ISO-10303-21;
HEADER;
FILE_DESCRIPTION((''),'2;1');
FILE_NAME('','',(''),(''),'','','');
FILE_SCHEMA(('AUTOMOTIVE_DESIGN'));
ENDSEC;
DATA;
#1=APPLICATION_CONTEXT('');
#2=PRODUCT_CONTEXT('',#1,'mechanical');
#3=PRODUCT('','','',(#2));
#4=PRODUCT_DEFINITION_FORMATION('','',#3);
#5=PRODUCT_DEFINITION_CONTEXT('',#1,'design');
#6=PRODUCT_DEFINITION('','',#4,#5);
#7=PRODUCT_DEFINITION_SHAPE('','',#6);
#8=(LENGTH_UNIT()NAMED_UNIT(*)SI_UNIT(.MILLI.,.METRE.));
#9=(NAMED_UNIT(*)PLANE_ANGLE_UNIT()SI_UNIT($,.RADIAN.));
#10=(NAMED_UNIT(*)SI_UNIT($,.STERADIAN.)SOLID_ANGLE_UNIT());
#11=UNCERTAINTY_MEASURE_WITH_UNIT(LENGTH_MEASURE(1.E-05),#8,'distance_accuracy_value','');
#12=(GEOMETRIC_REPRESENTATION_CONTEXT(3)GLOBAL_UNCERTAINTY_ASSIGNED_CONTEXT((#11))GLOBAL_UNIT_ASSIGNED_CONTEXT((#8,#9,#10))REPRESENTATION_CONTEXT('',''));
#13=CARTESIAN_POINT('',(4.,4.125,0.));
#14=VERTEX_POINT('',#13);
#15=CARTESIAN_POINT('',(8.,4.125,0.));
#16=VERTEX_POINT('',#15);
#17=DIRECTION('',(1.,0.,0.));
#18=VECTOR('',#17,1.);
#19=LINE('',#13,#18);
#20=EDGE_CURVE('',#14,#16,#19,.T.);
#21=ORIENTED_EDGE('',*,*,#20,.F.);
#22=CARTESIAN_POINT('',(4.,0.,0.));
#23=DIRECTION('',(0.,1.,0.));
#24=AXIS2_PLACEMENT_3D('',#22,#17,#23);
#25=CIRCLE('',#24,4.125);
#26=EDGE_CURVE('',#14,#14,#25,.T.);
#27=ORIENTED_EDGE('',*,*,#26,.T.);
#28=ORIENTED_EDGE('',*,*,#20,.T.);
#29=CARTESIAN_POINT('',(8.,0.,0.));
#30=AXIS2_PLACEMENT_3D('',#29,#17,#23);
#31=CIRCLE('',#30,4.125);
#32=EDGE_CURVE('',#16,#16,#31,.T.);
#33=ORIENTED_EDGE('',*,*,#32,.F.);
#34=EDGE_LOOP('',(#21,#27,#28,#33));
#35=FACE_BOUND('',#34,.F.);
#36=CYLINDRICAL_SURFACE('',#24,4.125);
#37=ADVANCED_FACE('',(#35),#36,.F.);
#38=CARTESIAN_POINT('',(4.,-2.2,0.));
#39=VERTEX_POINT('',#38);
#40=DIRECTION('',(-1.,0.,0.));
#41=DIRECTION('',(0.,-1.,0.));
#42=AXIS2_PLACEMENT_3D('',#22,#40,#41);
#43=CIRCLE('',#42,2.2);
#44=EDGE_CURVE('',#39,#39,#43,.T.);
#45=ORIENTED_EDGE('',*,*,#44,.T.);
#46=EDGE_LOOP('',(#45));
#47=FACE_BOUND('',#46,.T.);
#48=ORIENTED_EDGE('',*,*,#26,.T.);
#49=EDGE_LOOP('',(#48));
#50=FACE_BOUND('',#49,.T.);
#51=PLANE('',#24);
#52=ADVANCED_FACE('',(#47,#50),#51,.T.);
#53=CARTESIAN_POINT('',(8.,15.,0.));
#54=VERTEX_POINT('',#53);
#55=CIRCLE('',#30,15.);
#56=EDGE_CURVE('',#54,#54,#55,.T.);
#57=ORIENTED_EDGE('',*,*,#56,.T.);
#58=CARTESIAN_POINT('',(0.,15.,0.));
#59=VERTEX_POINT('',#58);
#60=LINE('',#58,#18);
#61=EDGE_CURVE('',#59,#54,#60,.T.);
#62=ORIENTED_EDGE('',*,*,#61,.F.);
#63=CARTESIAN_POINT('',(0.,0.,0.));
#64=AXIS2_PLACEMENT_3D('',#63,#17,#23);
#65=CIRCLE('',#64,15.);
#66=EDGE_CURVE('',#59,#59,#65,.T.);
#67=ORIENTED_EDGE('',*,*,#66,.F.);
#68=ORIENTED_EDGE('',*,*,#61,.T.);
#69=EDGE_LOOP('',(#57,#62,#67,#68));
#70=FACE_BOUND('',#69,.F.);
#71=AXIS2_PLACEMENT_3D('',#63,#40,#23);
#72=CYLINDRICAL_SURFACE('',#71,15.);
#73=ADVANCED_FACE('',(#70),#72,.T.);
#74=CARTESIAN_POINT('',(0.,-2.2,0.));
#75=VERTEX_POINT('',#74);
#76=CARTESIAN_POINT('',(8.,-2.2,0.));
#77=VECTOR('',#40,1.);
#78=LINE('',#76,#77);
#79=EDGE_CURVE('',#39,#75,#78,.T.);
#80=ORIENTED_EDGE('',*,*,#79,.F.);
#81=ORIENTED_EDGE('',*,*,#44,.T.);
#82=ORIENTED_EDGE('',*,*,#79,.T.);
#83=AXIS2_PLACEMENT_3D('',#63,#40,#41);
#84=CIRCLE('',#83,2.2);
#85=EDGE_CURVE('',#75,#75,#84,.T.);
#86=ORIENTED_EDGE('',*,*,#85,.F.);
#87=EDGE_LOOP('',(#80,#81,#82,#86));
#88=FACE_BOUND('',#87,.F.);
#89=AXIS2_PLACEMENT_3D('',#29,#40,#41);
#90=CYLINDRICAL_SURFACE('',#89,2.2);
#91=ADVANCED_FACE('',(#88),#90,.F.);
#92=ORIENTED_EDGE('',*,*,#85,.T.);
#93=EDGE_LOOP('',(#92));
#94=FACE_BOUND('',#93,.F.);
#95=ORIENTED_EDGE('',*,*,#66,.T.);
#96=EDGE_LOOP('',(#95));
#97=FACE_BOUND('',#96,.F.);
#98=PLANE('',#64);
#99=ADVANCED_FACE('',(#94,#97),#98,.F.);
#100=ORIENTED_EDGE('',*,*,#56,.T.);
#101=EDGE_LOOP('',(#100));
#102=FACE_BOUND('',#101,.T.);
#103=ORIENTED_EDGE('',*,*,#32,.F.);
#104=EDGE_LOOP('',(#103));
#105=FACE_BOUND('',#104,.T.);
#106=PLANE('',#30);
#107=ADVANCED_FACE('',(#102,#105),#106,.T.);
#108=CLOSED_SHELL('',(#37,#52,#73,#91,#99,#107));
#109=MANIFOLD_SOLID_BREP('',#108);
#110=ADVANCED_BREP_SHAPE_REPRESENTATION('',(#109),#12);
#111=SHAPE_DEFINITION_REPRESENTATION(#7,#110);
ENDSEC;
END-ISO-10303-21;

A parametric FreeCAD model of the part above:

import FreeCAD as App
import Part
import Sketcher

V = App.Vector

doc = App.newDocument("Part")
body = doc.addObject("PartDesign::Body", "Body")

# Sketch on YZ plane
sketch1 = doc.addObject("Sketcher::SketchObject", "Sketch")
body.addObject(sketch1)
sketch1.AttachmentSupport = (doc.YZ_Plane, [""])
sketch1.MapMode = "FlatFace"
sketch1.addGeometry(Part.Circle(V(0, 0, 0), V(0, 0, 1), 15), False)
sketch1.addConstraint([
    Sketcher.Constraint("Coincident", 0, 3, -1, 1),
    Sketcher.Constraint("Diameter", 0, 30.0),
])
pad1 = doc.addObject("PartDesign::Pad", "Pad")
body.addObject(pad1)
pad1.Profile = sketch1
pad1.Length = 8

# Sketch on YZ plane
sketch2 = doc.addObject("Sketcher::SketchObject", "Sketch001")
body.addObject(sketch2)
sketch2.AttachmentSupport = (doc.YZ_Plane, [""])
sketch2.MapMode = "FlatFace"
sketch2.AttachmentOffset = App.Placement(V(0, 0, 8), App.Rotation())
sketch2.addGeometry(Part.Circle(V(0, 0, 0), V(0, 0, 1), 2.2), False)
sketch2.addConstraint([
    Sketcher.Constraint("Coincident", 0, 3, -1, 1),
    Sketcher.Constraint("Diameter", 0, 4.4),
])
doc.recompute()
hole = doc.addObject("PartDesign::Hole", "Hole")
body.addObject(hole)
hole.Profile = sketch2
hole.ThreadType = "None"
hole.Diameter = 4.4
hole.DepthType = "ThroughAll"
hole.HoleCutType = "Counterbore"
hole.HoleCutDiameter = 8.25
hole.HoleCutDepth = 4

doc.recompute()
